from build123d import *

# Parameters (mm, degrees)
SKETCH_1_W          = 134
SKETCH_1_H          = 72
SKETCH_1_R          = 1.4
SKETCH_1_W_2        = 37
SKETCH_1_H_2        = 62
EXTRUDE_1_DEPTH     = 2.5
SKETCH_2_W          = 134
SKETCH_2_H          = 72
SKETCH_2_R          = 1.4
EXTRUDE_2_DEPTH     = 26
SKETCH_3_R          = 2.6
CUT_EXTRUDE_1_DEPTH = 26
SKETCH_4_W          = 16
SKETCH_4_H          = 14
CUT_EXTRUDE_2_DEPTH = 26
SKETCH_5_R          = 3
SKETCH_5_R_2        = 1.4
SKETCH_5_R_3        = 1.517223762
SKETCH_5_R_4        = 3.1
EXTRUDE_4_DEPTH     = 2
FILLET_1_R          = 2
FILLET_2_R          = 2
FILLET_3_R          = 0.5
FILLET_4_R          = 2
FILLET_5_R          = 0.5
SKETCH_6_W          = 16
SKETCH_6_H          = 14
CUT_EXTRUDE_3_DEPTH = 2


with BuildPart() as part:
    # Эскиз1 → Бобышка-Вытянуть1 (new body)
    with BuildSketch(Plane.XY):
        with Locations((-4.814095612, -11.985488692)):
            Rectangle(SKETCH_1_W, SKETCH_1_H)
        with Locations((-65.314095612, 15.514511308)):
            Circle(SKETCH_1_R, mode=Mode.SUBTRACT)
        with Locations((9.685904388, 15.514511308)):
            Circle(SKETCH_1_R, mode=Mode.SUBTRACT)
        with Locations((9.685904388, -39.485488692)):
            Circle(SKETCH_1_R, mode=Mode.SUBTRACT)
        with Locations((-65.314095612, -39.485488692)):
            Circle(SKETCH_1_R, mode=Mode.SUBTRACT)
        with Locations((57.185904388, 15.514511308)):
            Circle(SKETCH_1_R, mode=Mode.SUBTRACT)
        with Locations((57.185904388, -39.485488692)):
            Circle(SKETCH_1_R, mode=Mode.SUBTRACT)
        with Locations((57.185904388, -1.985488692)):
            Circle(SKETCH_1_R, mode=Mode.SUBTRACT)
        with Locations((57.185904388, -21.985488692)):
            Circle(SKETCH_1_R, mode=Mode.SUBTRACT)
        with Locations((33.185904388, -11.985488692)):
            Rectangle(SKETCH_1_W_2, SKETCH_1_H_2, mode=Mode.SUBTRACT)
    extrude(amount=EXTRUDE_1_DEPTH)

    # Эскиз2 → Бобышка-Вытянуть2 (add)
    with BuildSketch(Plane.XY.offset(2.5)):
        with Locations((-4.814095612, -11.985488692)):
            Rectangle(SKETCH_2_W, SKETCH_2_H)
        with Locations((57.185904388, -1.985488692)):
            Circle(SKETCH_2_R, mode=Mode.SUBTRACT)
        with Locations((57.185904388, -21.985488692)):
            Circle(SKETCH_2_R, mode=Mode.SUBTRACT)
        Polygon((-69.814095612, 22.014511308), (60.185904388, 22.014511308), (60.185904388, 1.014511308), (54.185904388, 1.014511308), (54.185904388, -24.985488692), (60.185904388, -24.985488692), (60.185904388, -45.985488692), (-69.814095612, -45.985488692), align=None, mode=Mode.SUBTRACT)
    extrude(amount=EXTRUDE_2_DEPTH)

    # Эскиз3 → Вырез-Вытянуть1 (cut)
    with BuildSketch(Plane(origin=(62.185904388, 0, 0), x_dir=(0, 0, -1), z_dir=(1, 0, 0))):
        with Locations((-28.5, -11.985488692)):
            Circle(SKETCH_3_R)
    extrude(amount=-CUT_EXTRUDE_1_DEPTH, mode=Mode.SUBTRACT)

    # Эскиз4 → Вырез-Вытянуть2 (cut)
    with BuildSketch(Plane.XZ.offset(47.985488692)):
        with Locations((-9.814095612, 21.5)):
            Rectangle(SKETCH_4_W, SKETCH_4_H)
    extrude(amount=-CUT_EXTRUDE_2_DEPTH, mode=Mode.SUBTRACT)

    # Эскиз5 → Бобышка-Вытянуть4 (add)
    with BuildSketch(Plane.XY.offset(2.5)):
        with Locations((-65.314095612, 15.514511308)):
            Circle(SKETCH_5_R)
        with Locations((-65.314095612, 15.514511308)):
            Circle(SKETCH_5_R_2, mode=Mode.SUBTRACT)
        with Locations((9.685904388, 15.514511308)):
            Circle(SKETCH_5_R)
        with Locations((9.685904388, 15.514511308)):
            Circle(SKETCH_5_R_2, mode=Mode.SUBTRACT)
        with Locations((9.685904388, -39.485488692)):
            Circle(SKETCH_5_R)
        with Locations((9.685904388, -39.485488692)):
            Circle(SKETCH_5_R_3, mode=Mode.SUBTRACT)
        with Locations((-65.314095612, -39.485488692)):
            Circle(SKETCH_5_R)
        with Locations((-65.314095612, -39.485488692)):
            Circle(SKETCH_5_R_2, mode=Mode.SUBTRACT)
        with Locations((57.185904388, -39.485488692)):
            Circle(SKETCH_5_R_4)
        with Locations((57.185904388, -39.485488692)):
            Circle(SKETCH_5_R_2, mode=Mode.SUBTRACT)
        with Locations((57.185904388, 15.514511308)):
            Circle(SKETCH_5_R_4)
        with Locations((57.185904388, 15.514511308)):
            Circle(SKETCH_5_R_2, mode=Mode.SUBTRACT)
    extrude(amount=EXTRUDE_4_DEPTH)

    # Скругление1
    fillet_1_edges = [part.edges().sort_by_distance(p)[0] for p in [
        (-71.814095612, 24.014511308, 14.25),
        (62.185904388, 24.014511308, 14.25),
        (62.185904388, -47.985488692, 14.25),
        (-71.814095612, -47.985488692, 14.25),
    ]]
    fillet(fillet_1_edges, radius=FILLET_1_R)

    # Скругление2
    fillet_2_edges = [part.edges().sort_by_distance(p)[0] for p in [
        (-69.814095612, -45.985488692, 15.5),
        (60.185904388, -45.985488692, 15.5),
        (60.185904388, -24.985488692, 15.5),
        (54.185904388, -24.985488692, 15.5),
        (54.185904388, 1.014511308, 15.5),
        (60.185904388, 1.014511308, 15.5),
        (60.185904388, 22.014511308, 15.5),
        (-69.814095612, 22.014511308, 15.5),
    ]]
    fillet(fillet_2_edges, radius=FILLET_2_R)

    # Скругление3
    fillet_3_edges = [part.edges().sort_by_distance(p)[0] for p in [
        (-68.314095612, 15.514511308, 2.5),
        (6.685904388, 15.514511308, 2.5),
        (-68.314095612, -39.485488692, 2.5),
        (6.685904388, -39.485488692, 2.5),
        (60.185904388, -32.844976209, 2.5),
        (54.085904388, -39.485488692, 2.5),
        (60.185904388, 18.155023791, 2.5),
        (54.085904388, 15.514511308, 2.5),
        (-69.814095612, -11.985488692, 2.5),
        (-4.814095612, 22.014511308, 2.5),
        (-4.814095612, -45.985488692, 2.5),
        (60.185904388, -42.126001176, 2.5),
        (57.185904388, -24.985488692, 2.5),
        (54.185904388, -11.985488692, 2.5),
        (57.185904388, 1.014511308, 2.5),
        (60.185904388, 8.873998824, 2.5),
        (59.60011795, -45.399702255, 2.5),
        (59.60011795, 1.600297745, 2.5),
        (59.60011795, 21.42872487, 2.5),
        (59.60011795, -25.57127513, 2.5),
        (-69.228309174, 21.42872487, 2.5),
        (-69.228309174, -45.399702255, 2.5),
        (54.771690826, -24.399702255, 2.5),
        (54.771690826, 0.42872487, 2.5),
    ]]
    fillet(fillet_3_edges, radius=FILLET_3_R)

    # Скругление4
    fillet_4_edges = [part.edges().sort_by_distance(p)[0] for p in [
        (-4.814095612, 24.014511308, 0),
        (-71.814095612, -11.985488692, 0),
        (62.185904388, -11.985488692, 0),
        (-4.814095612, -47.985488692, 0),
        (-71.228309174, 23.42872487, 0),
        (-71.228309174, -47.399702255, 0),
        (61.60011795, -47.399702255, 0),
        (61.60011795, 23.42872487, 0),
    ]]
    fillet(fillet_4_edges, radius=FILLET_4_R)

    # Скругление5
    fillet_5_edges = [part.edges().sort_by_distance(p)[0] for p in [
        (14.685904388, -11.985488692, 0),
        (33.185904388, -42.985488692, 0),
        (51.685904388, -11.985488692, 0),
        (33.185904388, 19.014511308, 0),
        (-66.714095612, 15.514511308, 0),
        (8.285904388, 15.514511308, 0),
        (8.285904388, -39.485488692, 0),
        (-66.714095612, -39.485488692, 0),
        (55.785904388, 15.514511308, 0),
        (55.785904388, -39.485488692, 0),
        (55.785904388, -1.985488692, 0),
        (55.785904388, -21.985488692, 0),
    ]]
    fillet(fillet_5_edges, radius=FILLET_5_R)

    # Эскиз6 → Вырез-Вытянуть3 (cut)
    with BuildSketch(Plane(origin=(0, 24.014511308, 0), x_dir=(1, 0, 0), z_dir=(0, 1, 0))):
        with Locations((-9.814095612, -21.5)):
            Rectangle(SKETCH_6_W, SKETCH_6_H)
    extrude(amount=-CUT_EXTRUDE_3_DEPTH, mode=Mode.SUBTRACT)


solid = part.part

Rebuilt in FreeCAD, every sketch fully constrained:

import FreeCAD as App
import Part
import Sketcher
Q = App.Units.Quantity


def edges_at(feature, points):
    """Names of the edges that pass closest to the given points."""
    edges = feature.Shape.Edges
    near = lambda p: min(range(len(edges)), key=lambda i: edges[i].distToShape(Part.Vertex(*p))[0])
    return sorted({f"Edge{near(p) + 1}" for p in points})


def add_polygon(sketch, points):
    """Adds a closed chain of lines whose ends are joined by coincident constraints."""
    first, n = sketch.GeometryCount, len(points)
    for a, b in zip(points, points[1:] + points[:1]):
        sketch.addGeometry(Part.LineSegment(App.Vector(*a, 0), App.Vector(*b, 0)), False)
    for i in range(n):
        sketch.addConstraint(Sketcher.Constraint("Coincident", first + i, 2, first + (i + 1) % n, 1))

doc = App.newDocument("Part")
params = doc.addObject("Spreadsheet::Sheet", "Params")
for row, (alias, value) in enumerate([
    ("sketch1_diameter", "2.8 mm"),
    ("sketch1_width", "134 mm"),
    ("sketch1_width2", "37 mm"),
    ("sketch1_height", "72 mm"),
    ("sketch1_height2", "62 mm"),
    ("pad1_length", "2.5 mm"),
    ("sketch2_diameter", "2.8 mm"),
    ("sketch2_width", "134 mm"),
    ("sketch2_width2", "130 mm"),
    ("sketch2_width3", "6 mm"),
    ("sketch2_height", "72 mm"),
    ("pad2_length", "26 mm"),
    ("sketch3_diameter", "5.2 mm"),
    ("pocket1_length", "26 mm"),
    ("sketch4_width", "16 mm"),
    ("sketch4_height", "14 mm"),
    ("pocket2_length", "26 mm"),
    ("sketch5_diameter", "6 mm"),
    ("sketch5_diameter2", "2.8 mm"),
    ("sketch5_diameter3", "6.2 mm"),
    ("pad3_length", "2 mm"),
    ("fillet_radius", "2 mm"),
    ("fillet2_radius", "2 mm"),
    ("fillet3_radius", "0.5 mm"),
    ("fillet4_radius", "2 mm"),
    ("fillet5_radius", "0.5 mm"),
    ("sketch6_width", "16 mm"),
    ("sketch6_height", "14 mm"),
    ("pocket3_length", "2 mm"),
], start=1):
    params.set(f"A{row}", alias)
    params.set(f"B{row}", "=" + value)
    params.setAlias(f"B{row}", alias)

body = doc.addObject("PartDesign::Body", "Body")

sketch1 = body.newObject("Sketcher::SketchObject", "Sketch")
sketch1.AttachmentSupport = (doc.getObject("XY_Plane"), [""])
sketch1.MapMode = "FlatFace"
add_polygon(sketch1, [(-71.814096, 24.014511), (-71.814096, -47.985489), (62.185904, -47.985489), (62.185904, 24.014511)])
sketch1.addGeometry(Part.Circle(App.Vector(-65.314096, -39.485489, 0), App.Vector(0, 0, 1), 1.4), False)
sketch1.addGeometry(Part.Circle(App.Vector(9.685904, -39.485489, 0), App.Vector(0, 0, 1), 1.4), False)
sketch1.addGeometry(Part.Circle(App.Vector(57.185904, -39.485489, 0), App.Vector(0, 0, 1), 1.4), False)
sketch1.addGeometry(Part.Circle(App.Vector(57.185904, -21.985489, 0), App.Vector(0, 0, 1), 1.4), False)
sketch1.addGeometry(Part.Circle(App.Vector(-65.314096, 15.514511, 0), App.Vector(0, 0, 1), 1.4), False)
add_polygon(sketch1, [(51.685904, -42.985489), (14.685904, -42.985489), (14.685904, 19.014511), (51.685904, 19.014511)])
sketch1.addGeometry(Part.Circle(App.Vector(57.185904, -1.985489, 0), App.Vector(0, 0, 1), 1.4), False)
sketch1.addGeometry(Part.Circle(App.Vector(9.685904, 15.514511, 0), App.Vector(0, 0, 1), 1.4), False)
sketch1.addGeometry(Part.Circle(App.Vector(57.185904, 15.514511, 0), App.Vector(0, 0, 1), 1.4), False)
sketch1.addConstraint([
    Sketcher.Constraint("Vertical", 0),
    Sketcher.Constraint("Horizontal", 1),
    Sketcher.Constraint("Vertical", 2),
    Sketcher.Constraint("Horizontal", 3),
    Sketcher.Constraint("Horizontal", 9),
    Sketcher.Constraint("Vertical", 10),
    Sketcher.Constraint("Horizontal", 11),
    Sketcher.Constraint("Vertical", 12),
    Sketcher.Constraint("Equal", 4, 5),
    Sketcher.Constraint("Equal", 5, 6),
    Sketcher.Constraint("Equal", 6, 7),
    Sketcher.Constraint("Equal", 7, 8),
    Sketcher.Constraint("Equal", 8, 13),
    Sketcher.Constraint("Equal", 13, 14),
    Sketcher.Constraint("Equal", 14, 15),
    Sketcher.Constraint("Horizontal", 4, 3, 5, 3),
    Sketcher.Constraint("Horizontal", 5, 3, 6, 3),
    Sketcher.Constraint("Horizontal", 8, 3, 14, 3),
    Sketcher.Constraint("Horizontal", 14, 3, 15, 3),
    Sketcher.Constraint("Vertical", 6, 3, 7, 3),
    Sketcher.Constraint("Vertical", 4, 3, 8, 3),
    Sketcher.Constraint("Vertical", 7, 3, 13, 3),
    Sketcher.Constraint("Vertical", 5, 3, 14, 3),
    Sketcher.Constraint("Vertical", 13, 3, 15, 3),
    Sketcher.Constraint("Diameter", 4, Q("2.8 mm")),
    Sketcher.Constraint("DistanceX", 1, 1, 1, 2, Q("134 mm")),
    Sketcher.Constraint("DistanceX", 9, 2, 9, 1, Q("37 mm")),
    Sketcher.Constraint("DistanceY", 0, 2, 0, 1, Q("72 mm")),
    Sketcher.Constraint("DistanceY", 10, 1, 10, 2, Q("62 mm")),
    Sketcher.Constraint("DistanceX", 4, 3, 5, 3, Q("75 mm")),
    Sketcher.Constraint("DistanceY", 4, 3, 8, 3, Q("55 mm")),
    Sketcher.Constraint("DistanceY", 7, 3, 13, 3, Q("20 mm")),
    Sketcher.Constraint("DistanceX", 0, 2, 6, 3, Q("129 mm")),
    Sketcher.Constraint("DistanceY", 1, 2, 7, 3, Q("26 mm")),
    Sketcher.Constraint("DistanceX", 5, 3, 9, 2, Q("5 mm")),
    Sketcher.Constraint("DistanceY", 9, 2, 7, 3, Q("21 mm")),
    Sketcher.Constraint("DistanceX", 5, 3, 6, 3, Q("47.5 mm")),
    Sketcher.Constraint("DistanceY", 6, 3, 7, 3, Q("17.5 mm")),
    Sketcher.Constraint("DistanceY", 4, 3, -1, 1, Q("39.485489 mm")),
    Sketcher.Constraint("DistanceX", 4, 3, -1, 1, Q("65.314096 mm")),
])
sketch1.setExpression("Constraints[32]", "Params.sketch1_diameter")
sketch1.setExpression("Constraints[33]", "Params.sketch1_width")
sketch1.setExpression("Constraints[34]", "Params.sketch1_width2")
sketch1.setExpression("Constraints[35]", "Params.sketch1_height")
sketch1.setExpression("Constraints[36]", "Params.sketch1_height2")
pad1 = body.newObject("PartDesign::Pad", "Pad")
pad1.Profile = sketch1
pad1.setExpression("Length", "Params.pad1_length")

sketch2 = body.newObject("Sketcher::SketchObject", "Sketch001")
sketch2.AttachmentSupport = (doc.getObject("XY_Plane"), [""])
sketch2.MapMode = "FlatFace"
sketch2.AttachmentOffset = App.Placement(App.Vector(0, 0, 2.5), App.Rotation())
add_polygon(sketch2, [(-71.814096, 24.014511), (-71.814096, -47.985489), (62.185904, -47.985489), (62.185904, 24.014511)])
sketch2.addGeometry(Part.Circle(App.Vector(57.185904, -21.985489, 0), App.Vector(0, 0, 1), 1.4), False)
add_polygon(sketch2, [(-69.814096, -45.985489), (-69.814096, 22.014511), (60.185904, 22.014511), (60.185904, 1.014511), (54.185904, 1.014511), (54.185904, -24.985489), (60.185904, -24.985489), (60.185904, -45.985489)])
sketch2.addGeometry(Part.Circle(App.Vector(57.185904, -1.985489, 0), App.Vector(0, 0, 1), 1.4), False)
sketch2.addConstraint([
    Sketcher.Constraint("Vertical", 0),
    Sketcher.Constraint("Horizontal", 1),
    Sketcher.Constraint("Vertical", 2),
    Sketcher.Constraint("Horizontal", 3),
    Sketcher.Constraint("Vertical", 5),
    Sketcher.Constraint("Horizontal", 6),
    Sketcher.Constraint("Vertical", 7),
    Sketcher.Constraint("Horizontal", 8),
    Sketcher.Constraint("Vertical", 9),
    Sketcher.Constraint("Horizontal", 10),
    Sketcher.Constraint("Vertical", 11),
    Sketcher.Constraint("Horizontal", 12),
    Sketcher.Constraint("Equal", 4, 13),
    Sketcher.Constraint("Vertical", 4, 3, 13, 3),
    Sketcher.Constraint("Vertical", 7, 2, 10, 2),
    Sketcher.Constraint("Equal", 7, 11),
    Sketcher.Constraint("Diameter", 4, Q("2.8 mm")),
    Sketcher.Constraint("DistanceX", 1, 1, 1, 2, Q("134 mm")),
    Sketcher.Constraint("DistanceX", 6, 1, 6, 2, Q("130 mm")),
    Sketcher.Constraint("DistanceX", 8, 2, 8, 1, Q("6 mm")),
    Sketcher.Constraint("DistanceY", 0, 2, 0, 1, Q("72 mm")),
    Sketcher.Constraint("DistanceY", 5, 1, 5, 2, Q("68 mm")),
    Sketcher.Constraint("DistanceY", 7, 2, 7, 1, Q("21 mm")),
    Sketcher.Constraint("DistanceY", 4, 3, 13, 3, Q("20 mm")),
    Sketcher.Constraint("DistanceX", 0, 2, 4, 3, Q("129 mm")),
    Sketcher.Constraint("DistanceY", 0, 2, 4, 3, Q("26 mm")),
    Sketcher.Constraint("DistanceX", 3, 2, 5, 2, Q("2 mm")),
    Sketcher.Constraint("DistanceY", 5, 2, 3, 2, Q("2 mm")),
    Sketcher.Constraint("DistanceY", 4, 3, -1, 1, Q("21.985489 mm")),
    Sketcher.Constraint("DistanceX", -1, 1, 4, 3, Q("57.185904 mm")),
])
sketch2.setExpression("Constraints[28]", "Params.sketch2_diameter")
sketch2.setExpression("Constraints[29]", "Params.sketch2_width")
sketch2.setExpression("Constraints[30]", "Params.sketch2_width2")
sketch2.setExpression("Constraints[31]", "Params.sketch2_width3")
sketch2.setExpression("Constraints[32]", "Params.sketch2_height")
pad2 = body.newObject("PartDesign::Pad", "Pad001")
pad2.Profile = sketch2
pad2.setExpression("Length", "Params.pad2_length")

sketch3 = body.newObject("Sketcher::SketchObject", "Sketch002")
sketch3.AttachmentSupport = (doc.getObject("YZ_Plane"), [""])
sketch3.MapMode = "FlatFace"
sketch3.AttachmentOffset = App.Placement(App.Vector(0, 0, 62.185904), App.Rotation())
sketch3.addGeometry(Part.Circle(App.Vector(-11.985489, 28.5, 0), App.Vector(0, 0, 1), 2.6), False)
sketch3.addConstraint([
    Sketcher.Constraint("Diameter", 0, Q("5.2 mm")),
    Sketcher.Constraint("DistanceY", -1, 1, 0, 3, Q("28.5 mm")),
    Sketcher.Constraint("DistanceX", 0, 3, -1, 1, Q("11.985489 mm")),
])
sketch3.setExpression("Constraints[0]", "Params.sketch3_diameter")
pocket1 = body.newObject("PartDesign::Pocket", "Pocket")
pocket1.Profile = sketch3
pocket1.setExpression("Length", "Params.pocket1_length")

sketch4 = body.newObject("Sketcher::SketchObject", "Sketch003")
sketch4.AttachmentSupport = (doc.getObject("XZ_Plane"), [""])
sketch4.MapMode = "FlatFace"
sketch4.AttachmentOffset = App.Placement(App.Vector(0, 0, 47.985489), App.Rotation())
add_polygon(sketch4, [(-17.814096, 28.5), (-17.814096, 14.5), (-1.814096, 14.5), (-1.814096, 28.5)])
sketch4.addConstraint([
    Sketcher.Constraint("Vertical", 0),
    Sketcher.Constraint("Horizontal", 1),
    Sketcher.Constraint("Vertical", 2),
    Sketcher.Constraint("Horizontal", 3),
    Sketcher.Constraint("DistanceX", 1, 1, 1, 2, Q("16 mm")),
    Sketcher.Constraint("DistanceY", 0, 2, 0, 1, Q("14 mm")),
    Sketcher.Constraint("DistanceY", -1, 1, 0, 2, Q("14.5 mm")),
    Sketcher.Constraint("DistanceX", 0, 2, -1, 1, Q("17.814096 mm")),
])
sketch4.setExpression("Constraints[8]", "Params.sketch4_width")
sketch4.setExpression("Constraints[9]", "Params.sketch4_height")
pocket2 = body.newObject("PartDesign::Pocket", "Pocket001")
pocket2.Profile = sketch4
pocket2.setExpression("Length", "Params.pocket2_length")

sketch5 = body.newObject("Sketcher::SketchObject", "Sketch004")
sketch5.AttachmentSupport = (doc.getObject("XY_Plane"), [""])
sketch5.MapMode = "FlatFace"
sketch5.AttachmentOffset = App.Placement(App.Vector(0, 0, 2.5), App.Rotation())
sketch5.addGeometry([
    Part.Circle(App.Vector(-65.314096, 15.514511, 0), App.Vector(0, 0, 1), 3),
    Part.Circle(App.Vector(-65.314096, 15.514511, 0), App.Vector(0, 0, 1), 1.4),
    Part.Circle(App.Vector(9.685904, 15.514511, 0), App.Vector(0, 0, 1), 3),
    Part.Circle(App.Vector(9.685904, 15.514511, 0), App.Vector(0, 0, 1), 1.4),
    Part.Circle(App.Vector(9.685904, -39.485489, 0), App.Vector(0, 0, 1), 3),
    Part.Circle(App.Vector(9.685904, -39.485489, 0), App.Vector(0, 0, 1), 1.517224),
    Part.Circle(App.Vector(-65.314096, -39.485489, 0), App.Vector(0, 0, 1), 3),
    Part.Circle(App.Vector(-65.314096, -39.485489, 0), App.Vector(0, 0, 1), 1.4),
    Part.Circle(App.Vector(57.185904, -39.485489, 0), App.Vector(0, 0, 1), 3.1),
    Part.Circle(App.Vector(57.185904, -39.485489, 0), App.Vector(0, 0, 1), 1.4),
    Part.Circle(App.Vector(57.185904, 15.514511, 0), App.Vector(0, 0, 1), 3.1),
    Part.Circle(App.Vector(57.185904, 15.514511, 0), App.Vector(0, 0, 1), 1.4),
], False)
sketch5.addConstraint([
    Sketcher.Constraint("Coincident", 1, 3, 0, 3),
    Sketcher.Constraint("Coincident", 3, 3, 2, 3),
    Sketcher.Constraint("Coincident", 5, 3, 4, 3),
    Sketcher.Constraint("Coincident", 7, 3, 6, 3),
    Sketcher.Constraint("Coincident", 9, 3, 8, 3),
    Sketcher.Constraint("Coincident", 11, 3, 10, 3),
    Sketcher.Constraint("Equal", 0, 2),
    Sketcher.Constraint("Equal", 1, 3),
    Sketcher.Constraint("Equal", 2, 4),
    Sketcher.Constraint("Equal", 4, 6),
    Sketcher.Constraint("Equal", 3, 7),
    Sketcher.Constraint("Equal", 7, 9),
    Sketcher.Constraint("Equal", 8, 10),
    Sketcher.Constraint("Equal", 9, 11),
    Sketcher.Constraint("Horizontal", 1, 3, 2, 3),
    Sketcher.Constraint("Horizontal", 5, 3, 6, 3),
    Sketcher.Constraint("Horizontal", 7, 3, 8, 3),
    Sketcher.Constraint("Horizontal", 3, 3, 10, 3),
    Sketcher.Constraint("Vertical", 3, 3, 4, 3),
    Sketcher.Constraint("Vertical", 1, 3, 6, 3),
    Sketcher.Constraint("Vertical", 9, 3, 10, 3),
    Sketcher.Constraint("Diameter", 0, Q("6 mm")),
    Sketcher.Constraint("Diameter", 1, Q("2.8 mm")),
    Sketcher.Constraint("Diameter", 8, Q("6.2 mm")),
    Sketcher.Constraint("DistanceX", 0, 3, 2, 3, Q("75 mm")),
    Sketcher.Constraint("DistanceY", 4, 3, 2, 3, Q("55 mm")),
    Sketcher.Constraint("DistanceX", 4, 3, 8, 3, Q("47.5 mm")),
    Sketcher.Constraint("Diameter", 5, Q("3.034448 mm")),
    Sketcher.Constraint("DistanceY", -1, 1, 0, 3, Q("15.514511 mm")),
    Sketcher.Constraint("DistanceX", 0, 3, -1, 1, Q("65.314096 mm")),
])
sketch5.setExpression("Constraints[21]", "Params.sketch5_diameter")
sketch5.setExpression("Constraints[22]", "Params.sketch5_diameter2")
sketch5.setExpression("Constraints[23]", "Params.sketch5_diameter3")
pad3 = body.newObject("PartDesign::Pad", "Pad002")
pad3.Profile = sketch5
pad3.setExpression("Length", "Params.pad3_length")
doc.recompute()

fillet = body.newObject("PartDesign::Fillet", "Fillet")
fillet.Base = (pad3, edges_at(pad3, [
    (-71.814, 24.015, 14.25),
    (62.186, 24.015, 14.25),
    (62.186, -47.985, 14.25),
    (-71.814, -47.985, 14.25),
]))
fillet.setExpression("Radius", "Params.fillet_radius")
doc.recompute()

fillet2 = body.newObject("PartDesign::Fillet", "Fillet001")
fillet2.Base = (fillet, edges_at(fillet, [
    (-69.814, -45.985, 15.5),
    (60.186, -45.985, 15.5),
    (60.186, -24.985, 15.5),
    (54.186, -24.985, 15.5),
    (54.186, 1.015, 15.5),
    (60.186, 1.015, 15.5),
    (60.186, 22.015, 15.5),
    (-69.814, 22.015, 15.5),
]))
fillet2.setExpression("Radius", "Params.fillet2_radius")
doc.recompute()

fillet3 = body.newObject("PartDesign::Fillet", "Fillet002")
fillet3.Base = (fillet2, edges_at(fillet2, [
    (-68.314, 15.515, 2.5),
    (6.686, 15.515, 2.5),
    (-68.314, -39.485, 2.5),
    (6.686, -39.485, 2.5),
    (60.186, -32.845, 2.5),
    (54.086, -39.485, 2.5),
    (60.186, 18.155, 2.5),
    (54.086, 15.515, 2.5),
    (-69.814, -11.985, 2.5),
    (-4.814, 22.015, 2.5),
    (-4.814, -45.985, 2.5),
    (60.186, -42.126, 2.5),
    (57.186, -24.985, 2.5),
    (54.186, -11.985, 2.5),
    (57.186, 1.015, 2.5),
    (60.186, 8.874, 2.5),
    (59.6, -45.4, 2.5),
    (59.6, 1.6, 2.5),
    (59.6, 21.429, 2.5),
    (59.6, -25.571, 2.5),
    (-69.228, 21.429, 2.5),
    (-69.228, -45.4, 2.5),
    (54.772, -24.4, 2.5),
    (54.772, 0.429, 2.5),
]))
fillet3.setExpression("Radius", "Params.fillet3_radius")
doc.recompute()

fillet4 = body.newObject("PartDesign::Fillet", "Fillet003")
fillet4.Base = (fillet3, edges_at(fillet3, [
    (-4.814, 24.015, 0),
    (-71.814, -11.985, 0),
    (62.186, -11.985, 0),
    (-4.814, -47.985, 0),
    (-71.228, 23.429, 0),
    (-71.228, -47.4, 0),
    (61.6, -47.4, 0),
    (61.6, 23.429, 0),
]))
fillet4.setExpression("Radius", "Params.fillet4_radius")
doc.recompute()

fillet5 = body.newObject("PartDesign::Fillet", "Fillet004")
fillet5.Base = (fillet4, edges_at(fillet4, [
    (14.686, -11.985, 0),
    (33.186, -42.985, 0),
    (51.686, -11.985, 0),
    (33.186, 19.015, 0),
    (-66.714, 15.515, 0),
    (8.286, 15.515, 0),
    (8.286, -39.485, 0),
    (-66.714, -39.485, 0),
    (55.786, 15.515, 0),
    (55.786, -39.485, 0),
    (55.786, -1.985, 0),
    (55.786, -21.985, 0),
]))
fillet5.setExpression("Radius", "Params.fillet5_radius")

sketch6 = body.newObject("Sketcher::SketchObject", "Sketch005")
sketch6.AttachmentSupport = (doc.getObject("XZ_Plane"), [""])
sketch6.MapMode = "FlatFace"
sketch6.AttachmentOffset = App.Placement(App.Vector(0, 0, -24.014511), App.Rotation())
add_polygon(sketch6, [(-17.814096, 14.5), (-17.814096, 28.5), (-1.814096, 28.5), (-1.814096, 14.5)])
sketch6.addConstraint([
    Sketcher.Constraint("Vertical", 0),
    Sketcher.Constraint("Horizontal", 1),
    Sketcher.Constraint("Vertical", 2),
    Sketcher.Constraint("Horizontal", 3),
    Sketcher.Constraint("DistanceX", 1, 1, 1, 2, Q("16 mm")),
    Sketcher.Constraint("DistanceY", 0, 1, 0, 2, Q("14 mm")),
    Sketcher.Constraint("DistanceY", -1, 1, 0, 2, Q("28.5 mm")),
    Sketcher.Constraint("DistanceX", 0, 2, -1, 1, Q("17.814096 mm")),
])
sketch6.setExpression("Constraints[8]", "Params.sketch6_width")
sketch6.setExpression("Constraints[9]", "Params.sketch6_height")
pocket3 = body.newObject("PartDesign::Pocket", "Pocket002")
pocket3.Profile = sketch6
pocket3.setExpression("Length", "Params.pocket3_length")
pocket3.Reversed = True

doc.recompute()
